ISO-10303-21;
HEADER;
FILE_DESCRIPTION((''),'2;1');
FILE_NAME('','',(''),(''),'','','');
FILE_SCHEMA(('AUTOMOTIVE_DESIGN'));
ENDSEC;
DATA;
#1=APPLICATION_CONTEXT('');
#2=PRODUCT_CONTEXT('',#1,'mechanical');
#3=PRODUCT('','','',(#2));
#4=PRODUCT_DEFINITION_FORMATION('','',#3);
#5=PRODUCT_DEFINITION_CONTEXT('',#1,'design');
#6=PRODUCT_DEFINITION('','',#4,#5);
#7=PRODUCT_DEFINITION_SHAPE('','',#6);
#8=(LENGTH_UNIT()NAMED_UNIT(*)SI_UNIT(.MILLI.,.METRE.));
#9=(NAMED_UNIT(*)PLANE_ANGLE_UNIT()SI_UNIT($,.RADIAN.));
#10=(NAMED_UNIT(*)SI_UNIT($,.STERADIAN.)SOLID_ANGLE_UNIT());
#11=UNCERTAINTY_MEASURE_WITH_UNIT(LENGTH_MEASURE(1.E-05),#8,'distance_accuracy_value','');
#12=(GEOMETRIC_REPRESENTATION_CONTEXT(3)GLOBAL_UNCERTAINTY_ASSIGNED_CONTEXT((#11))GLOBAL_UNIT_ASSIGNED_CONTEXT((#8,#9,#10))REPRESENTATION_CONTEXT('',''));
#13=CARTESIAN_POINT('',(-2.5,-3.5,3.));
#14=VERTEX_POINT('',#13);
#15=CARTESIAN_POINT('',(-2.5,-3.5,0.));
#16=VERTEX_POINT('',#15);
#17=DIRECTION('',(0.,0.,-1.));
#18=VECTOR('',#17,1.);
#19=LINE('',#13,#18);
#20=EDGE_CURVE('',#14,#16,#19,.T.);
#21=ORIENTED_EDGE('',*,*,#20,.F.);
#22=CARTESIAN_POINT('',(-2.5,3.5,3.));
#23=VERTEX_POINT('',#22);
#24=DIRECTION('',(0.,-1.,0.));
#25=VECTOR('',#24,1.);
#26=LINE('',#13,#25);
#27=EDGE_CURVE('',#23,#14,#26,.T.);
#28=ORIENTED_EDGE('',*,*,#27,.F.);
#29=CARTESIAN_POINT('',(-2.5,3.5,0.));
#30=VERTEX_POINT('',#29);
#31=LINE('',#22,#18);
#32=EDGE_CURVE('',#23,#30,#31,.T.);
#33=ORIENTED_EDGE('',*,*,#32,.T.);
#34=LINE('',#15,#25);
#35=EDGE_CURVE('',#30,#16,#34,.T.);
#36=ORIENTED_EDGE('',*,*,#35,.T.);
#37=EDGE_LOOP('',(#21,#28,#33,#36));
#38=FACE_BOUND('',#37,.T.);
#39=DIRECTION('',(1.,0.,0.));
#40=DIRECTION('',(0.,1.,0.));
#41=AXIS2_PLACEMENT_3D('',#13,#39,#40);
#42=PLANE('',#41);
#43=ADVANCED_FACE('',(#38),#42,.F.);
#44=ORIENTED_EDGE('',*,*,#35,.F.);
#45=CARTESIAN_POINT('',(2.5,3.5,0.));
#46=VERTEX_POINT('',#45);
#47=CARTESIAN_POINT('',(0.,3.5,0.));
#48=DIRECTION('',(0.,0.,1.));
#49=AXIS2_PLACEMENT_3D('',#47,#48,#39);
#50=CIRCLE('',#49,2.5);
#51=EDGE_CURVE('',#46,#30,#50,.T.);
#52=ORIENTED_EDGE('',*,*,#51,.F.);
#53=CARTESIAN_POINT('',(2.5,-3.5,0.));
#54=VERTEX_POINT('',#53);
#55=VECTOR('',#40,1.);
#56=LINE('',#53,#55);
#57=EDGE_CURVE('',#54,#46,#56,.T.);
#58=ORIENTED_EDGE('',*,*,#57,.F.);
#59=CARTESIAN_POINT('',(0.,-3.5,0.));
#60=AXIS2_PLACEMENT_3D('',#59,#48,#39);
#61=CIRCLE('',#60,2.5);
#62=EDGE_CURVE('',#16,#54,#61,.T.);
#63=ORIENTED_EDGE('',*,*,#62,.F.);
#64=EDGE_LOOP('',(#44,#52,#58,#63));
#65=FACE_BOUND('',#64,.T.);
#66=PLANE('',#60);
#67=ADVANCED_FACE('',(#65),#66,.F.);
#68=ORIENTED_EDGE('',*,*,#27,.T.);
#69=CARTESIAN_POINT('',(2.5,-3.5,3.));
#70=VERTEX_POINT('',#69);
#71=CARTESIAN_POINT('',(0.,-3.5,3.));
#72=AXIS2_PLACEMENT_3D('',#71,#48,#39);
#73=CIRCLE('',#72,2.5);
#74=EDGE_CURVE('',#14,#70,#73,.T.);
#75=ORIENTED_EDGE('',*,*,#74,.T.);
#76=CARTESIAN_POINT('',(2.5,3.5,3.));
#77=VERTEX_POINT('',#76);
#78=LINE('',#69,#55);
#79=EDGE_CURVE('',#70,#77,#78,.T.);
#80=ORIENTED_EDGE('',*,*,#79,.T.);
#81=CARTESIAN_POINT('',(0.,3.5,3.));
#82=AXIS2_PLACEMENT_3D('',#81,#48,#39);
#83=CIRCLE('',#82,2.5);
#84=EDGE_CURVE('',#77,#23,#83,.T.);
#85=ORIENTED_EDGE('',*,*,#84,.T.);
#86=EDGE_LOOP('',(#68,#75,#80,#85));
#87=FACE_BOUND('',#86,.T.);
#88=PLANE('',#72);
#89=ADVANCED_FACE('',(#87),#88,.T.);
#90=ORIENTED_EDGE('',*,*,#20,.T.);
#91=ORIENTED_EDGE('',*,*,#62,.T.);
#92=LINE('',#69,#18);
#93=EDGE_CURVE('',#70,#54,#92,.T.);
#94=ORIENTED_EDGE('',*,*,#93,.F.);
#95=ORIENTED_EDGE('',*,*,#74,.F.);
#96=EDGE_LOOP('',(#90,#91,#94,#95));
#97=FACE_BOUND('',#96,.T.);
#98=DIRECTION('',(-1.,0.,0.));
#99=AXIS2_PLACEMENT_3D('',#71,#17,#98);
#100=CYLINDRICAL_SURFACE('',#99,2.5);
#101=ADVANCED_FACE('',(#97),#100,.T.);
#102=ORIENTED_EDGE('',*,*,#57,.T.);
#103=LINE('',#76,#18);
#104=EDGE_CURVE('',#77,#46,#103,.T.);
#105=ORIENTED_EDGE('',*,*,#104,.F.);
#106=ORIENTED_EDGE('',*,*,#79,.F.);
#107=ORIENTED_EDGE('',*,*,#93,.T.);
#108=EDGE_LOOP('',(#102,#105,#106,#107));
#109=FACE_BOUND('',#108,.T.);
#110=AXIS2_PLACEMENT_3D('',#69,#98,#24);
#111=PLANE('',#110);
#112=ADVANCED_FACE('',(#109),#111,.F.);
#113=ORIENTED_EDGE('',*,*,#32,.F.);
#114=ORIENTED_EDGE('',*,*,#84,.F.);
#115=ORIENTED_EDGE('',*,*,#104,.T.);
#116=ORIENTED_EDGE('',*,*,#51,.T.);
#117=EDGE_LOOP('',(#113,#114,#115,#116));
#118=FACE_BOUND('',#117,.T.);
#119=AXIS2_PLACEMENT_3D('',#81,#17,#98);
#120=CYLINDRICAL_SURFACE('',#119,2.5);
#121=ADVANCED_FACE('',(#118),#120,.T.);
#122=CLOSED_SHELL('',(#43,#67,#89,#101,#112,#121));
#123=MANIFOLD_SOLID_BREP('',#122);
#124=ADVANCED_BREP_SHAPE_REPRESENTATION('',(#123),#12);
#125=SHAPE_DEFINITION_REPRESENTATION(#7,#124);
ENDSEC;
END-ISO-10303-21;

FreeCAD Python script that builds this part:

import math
import FreeCAD as App
import Part
import Sketcher

V = App.Vector

doc = App.newDocument("Part")
body = doc.addObject("PartDesign::Body", "Body")

sketch1 = body.newObject("Sketcher::SketchObject", "Sketch")
sketch1.AttachmentSupport = (doc.getObject("XY_Plane"), [""])
sketch1.MapMode = "FlatFace"
sketch1.addGeometry([
    Part.LineSegment(V(-2.5, 3.5, 0), V(-2.5, -3.5, 0)),
    Part.ArcOfCircle(Part.Circle(V(0, -3.5, 0), V(0, 0, 1), 2.5), math.radians(180), math.radians(360)),
    Part.LineSegment(V(2.5, -3.5, 0), V(2.5, 3.5, 0)),
    Part.ArcOfCircle(Part.Circle(V(0, 3.5, 0), V(0, 0, 1), 2.5), math.radians(0), math.radians(180)),
], False)
sketch1.addConstraint([
    Sketcher.Constraint("Tangent", 0, 2, 1, 1),
    Sketcher.Constraint("Tangent", 1, 2, 2, 1),
    Sketcher.Constraint("Tangent", 2, 2, 3, 1),
    Sketcher.Constraint("Tangent", 3, 2, 0, 1),
    Sketcher.Constraint("Vertical", 0),
    Sketcher.Constraint("Vertical", 2),
    Sketcher.Constraint("Symmetric", 1, 3, 3, 3, -1, 1),
    Sketcher.Constraint("Radius", 1, 2.5),
    Sketcher.Constraint("DistanceY", 0, 2, 0, 1, 7.0),
])
pad1 = body.newObject("PartDesign::Pad", "Pad")
pad1.Profile = sketch1
pad1.Length = 3

doc.recompute()
